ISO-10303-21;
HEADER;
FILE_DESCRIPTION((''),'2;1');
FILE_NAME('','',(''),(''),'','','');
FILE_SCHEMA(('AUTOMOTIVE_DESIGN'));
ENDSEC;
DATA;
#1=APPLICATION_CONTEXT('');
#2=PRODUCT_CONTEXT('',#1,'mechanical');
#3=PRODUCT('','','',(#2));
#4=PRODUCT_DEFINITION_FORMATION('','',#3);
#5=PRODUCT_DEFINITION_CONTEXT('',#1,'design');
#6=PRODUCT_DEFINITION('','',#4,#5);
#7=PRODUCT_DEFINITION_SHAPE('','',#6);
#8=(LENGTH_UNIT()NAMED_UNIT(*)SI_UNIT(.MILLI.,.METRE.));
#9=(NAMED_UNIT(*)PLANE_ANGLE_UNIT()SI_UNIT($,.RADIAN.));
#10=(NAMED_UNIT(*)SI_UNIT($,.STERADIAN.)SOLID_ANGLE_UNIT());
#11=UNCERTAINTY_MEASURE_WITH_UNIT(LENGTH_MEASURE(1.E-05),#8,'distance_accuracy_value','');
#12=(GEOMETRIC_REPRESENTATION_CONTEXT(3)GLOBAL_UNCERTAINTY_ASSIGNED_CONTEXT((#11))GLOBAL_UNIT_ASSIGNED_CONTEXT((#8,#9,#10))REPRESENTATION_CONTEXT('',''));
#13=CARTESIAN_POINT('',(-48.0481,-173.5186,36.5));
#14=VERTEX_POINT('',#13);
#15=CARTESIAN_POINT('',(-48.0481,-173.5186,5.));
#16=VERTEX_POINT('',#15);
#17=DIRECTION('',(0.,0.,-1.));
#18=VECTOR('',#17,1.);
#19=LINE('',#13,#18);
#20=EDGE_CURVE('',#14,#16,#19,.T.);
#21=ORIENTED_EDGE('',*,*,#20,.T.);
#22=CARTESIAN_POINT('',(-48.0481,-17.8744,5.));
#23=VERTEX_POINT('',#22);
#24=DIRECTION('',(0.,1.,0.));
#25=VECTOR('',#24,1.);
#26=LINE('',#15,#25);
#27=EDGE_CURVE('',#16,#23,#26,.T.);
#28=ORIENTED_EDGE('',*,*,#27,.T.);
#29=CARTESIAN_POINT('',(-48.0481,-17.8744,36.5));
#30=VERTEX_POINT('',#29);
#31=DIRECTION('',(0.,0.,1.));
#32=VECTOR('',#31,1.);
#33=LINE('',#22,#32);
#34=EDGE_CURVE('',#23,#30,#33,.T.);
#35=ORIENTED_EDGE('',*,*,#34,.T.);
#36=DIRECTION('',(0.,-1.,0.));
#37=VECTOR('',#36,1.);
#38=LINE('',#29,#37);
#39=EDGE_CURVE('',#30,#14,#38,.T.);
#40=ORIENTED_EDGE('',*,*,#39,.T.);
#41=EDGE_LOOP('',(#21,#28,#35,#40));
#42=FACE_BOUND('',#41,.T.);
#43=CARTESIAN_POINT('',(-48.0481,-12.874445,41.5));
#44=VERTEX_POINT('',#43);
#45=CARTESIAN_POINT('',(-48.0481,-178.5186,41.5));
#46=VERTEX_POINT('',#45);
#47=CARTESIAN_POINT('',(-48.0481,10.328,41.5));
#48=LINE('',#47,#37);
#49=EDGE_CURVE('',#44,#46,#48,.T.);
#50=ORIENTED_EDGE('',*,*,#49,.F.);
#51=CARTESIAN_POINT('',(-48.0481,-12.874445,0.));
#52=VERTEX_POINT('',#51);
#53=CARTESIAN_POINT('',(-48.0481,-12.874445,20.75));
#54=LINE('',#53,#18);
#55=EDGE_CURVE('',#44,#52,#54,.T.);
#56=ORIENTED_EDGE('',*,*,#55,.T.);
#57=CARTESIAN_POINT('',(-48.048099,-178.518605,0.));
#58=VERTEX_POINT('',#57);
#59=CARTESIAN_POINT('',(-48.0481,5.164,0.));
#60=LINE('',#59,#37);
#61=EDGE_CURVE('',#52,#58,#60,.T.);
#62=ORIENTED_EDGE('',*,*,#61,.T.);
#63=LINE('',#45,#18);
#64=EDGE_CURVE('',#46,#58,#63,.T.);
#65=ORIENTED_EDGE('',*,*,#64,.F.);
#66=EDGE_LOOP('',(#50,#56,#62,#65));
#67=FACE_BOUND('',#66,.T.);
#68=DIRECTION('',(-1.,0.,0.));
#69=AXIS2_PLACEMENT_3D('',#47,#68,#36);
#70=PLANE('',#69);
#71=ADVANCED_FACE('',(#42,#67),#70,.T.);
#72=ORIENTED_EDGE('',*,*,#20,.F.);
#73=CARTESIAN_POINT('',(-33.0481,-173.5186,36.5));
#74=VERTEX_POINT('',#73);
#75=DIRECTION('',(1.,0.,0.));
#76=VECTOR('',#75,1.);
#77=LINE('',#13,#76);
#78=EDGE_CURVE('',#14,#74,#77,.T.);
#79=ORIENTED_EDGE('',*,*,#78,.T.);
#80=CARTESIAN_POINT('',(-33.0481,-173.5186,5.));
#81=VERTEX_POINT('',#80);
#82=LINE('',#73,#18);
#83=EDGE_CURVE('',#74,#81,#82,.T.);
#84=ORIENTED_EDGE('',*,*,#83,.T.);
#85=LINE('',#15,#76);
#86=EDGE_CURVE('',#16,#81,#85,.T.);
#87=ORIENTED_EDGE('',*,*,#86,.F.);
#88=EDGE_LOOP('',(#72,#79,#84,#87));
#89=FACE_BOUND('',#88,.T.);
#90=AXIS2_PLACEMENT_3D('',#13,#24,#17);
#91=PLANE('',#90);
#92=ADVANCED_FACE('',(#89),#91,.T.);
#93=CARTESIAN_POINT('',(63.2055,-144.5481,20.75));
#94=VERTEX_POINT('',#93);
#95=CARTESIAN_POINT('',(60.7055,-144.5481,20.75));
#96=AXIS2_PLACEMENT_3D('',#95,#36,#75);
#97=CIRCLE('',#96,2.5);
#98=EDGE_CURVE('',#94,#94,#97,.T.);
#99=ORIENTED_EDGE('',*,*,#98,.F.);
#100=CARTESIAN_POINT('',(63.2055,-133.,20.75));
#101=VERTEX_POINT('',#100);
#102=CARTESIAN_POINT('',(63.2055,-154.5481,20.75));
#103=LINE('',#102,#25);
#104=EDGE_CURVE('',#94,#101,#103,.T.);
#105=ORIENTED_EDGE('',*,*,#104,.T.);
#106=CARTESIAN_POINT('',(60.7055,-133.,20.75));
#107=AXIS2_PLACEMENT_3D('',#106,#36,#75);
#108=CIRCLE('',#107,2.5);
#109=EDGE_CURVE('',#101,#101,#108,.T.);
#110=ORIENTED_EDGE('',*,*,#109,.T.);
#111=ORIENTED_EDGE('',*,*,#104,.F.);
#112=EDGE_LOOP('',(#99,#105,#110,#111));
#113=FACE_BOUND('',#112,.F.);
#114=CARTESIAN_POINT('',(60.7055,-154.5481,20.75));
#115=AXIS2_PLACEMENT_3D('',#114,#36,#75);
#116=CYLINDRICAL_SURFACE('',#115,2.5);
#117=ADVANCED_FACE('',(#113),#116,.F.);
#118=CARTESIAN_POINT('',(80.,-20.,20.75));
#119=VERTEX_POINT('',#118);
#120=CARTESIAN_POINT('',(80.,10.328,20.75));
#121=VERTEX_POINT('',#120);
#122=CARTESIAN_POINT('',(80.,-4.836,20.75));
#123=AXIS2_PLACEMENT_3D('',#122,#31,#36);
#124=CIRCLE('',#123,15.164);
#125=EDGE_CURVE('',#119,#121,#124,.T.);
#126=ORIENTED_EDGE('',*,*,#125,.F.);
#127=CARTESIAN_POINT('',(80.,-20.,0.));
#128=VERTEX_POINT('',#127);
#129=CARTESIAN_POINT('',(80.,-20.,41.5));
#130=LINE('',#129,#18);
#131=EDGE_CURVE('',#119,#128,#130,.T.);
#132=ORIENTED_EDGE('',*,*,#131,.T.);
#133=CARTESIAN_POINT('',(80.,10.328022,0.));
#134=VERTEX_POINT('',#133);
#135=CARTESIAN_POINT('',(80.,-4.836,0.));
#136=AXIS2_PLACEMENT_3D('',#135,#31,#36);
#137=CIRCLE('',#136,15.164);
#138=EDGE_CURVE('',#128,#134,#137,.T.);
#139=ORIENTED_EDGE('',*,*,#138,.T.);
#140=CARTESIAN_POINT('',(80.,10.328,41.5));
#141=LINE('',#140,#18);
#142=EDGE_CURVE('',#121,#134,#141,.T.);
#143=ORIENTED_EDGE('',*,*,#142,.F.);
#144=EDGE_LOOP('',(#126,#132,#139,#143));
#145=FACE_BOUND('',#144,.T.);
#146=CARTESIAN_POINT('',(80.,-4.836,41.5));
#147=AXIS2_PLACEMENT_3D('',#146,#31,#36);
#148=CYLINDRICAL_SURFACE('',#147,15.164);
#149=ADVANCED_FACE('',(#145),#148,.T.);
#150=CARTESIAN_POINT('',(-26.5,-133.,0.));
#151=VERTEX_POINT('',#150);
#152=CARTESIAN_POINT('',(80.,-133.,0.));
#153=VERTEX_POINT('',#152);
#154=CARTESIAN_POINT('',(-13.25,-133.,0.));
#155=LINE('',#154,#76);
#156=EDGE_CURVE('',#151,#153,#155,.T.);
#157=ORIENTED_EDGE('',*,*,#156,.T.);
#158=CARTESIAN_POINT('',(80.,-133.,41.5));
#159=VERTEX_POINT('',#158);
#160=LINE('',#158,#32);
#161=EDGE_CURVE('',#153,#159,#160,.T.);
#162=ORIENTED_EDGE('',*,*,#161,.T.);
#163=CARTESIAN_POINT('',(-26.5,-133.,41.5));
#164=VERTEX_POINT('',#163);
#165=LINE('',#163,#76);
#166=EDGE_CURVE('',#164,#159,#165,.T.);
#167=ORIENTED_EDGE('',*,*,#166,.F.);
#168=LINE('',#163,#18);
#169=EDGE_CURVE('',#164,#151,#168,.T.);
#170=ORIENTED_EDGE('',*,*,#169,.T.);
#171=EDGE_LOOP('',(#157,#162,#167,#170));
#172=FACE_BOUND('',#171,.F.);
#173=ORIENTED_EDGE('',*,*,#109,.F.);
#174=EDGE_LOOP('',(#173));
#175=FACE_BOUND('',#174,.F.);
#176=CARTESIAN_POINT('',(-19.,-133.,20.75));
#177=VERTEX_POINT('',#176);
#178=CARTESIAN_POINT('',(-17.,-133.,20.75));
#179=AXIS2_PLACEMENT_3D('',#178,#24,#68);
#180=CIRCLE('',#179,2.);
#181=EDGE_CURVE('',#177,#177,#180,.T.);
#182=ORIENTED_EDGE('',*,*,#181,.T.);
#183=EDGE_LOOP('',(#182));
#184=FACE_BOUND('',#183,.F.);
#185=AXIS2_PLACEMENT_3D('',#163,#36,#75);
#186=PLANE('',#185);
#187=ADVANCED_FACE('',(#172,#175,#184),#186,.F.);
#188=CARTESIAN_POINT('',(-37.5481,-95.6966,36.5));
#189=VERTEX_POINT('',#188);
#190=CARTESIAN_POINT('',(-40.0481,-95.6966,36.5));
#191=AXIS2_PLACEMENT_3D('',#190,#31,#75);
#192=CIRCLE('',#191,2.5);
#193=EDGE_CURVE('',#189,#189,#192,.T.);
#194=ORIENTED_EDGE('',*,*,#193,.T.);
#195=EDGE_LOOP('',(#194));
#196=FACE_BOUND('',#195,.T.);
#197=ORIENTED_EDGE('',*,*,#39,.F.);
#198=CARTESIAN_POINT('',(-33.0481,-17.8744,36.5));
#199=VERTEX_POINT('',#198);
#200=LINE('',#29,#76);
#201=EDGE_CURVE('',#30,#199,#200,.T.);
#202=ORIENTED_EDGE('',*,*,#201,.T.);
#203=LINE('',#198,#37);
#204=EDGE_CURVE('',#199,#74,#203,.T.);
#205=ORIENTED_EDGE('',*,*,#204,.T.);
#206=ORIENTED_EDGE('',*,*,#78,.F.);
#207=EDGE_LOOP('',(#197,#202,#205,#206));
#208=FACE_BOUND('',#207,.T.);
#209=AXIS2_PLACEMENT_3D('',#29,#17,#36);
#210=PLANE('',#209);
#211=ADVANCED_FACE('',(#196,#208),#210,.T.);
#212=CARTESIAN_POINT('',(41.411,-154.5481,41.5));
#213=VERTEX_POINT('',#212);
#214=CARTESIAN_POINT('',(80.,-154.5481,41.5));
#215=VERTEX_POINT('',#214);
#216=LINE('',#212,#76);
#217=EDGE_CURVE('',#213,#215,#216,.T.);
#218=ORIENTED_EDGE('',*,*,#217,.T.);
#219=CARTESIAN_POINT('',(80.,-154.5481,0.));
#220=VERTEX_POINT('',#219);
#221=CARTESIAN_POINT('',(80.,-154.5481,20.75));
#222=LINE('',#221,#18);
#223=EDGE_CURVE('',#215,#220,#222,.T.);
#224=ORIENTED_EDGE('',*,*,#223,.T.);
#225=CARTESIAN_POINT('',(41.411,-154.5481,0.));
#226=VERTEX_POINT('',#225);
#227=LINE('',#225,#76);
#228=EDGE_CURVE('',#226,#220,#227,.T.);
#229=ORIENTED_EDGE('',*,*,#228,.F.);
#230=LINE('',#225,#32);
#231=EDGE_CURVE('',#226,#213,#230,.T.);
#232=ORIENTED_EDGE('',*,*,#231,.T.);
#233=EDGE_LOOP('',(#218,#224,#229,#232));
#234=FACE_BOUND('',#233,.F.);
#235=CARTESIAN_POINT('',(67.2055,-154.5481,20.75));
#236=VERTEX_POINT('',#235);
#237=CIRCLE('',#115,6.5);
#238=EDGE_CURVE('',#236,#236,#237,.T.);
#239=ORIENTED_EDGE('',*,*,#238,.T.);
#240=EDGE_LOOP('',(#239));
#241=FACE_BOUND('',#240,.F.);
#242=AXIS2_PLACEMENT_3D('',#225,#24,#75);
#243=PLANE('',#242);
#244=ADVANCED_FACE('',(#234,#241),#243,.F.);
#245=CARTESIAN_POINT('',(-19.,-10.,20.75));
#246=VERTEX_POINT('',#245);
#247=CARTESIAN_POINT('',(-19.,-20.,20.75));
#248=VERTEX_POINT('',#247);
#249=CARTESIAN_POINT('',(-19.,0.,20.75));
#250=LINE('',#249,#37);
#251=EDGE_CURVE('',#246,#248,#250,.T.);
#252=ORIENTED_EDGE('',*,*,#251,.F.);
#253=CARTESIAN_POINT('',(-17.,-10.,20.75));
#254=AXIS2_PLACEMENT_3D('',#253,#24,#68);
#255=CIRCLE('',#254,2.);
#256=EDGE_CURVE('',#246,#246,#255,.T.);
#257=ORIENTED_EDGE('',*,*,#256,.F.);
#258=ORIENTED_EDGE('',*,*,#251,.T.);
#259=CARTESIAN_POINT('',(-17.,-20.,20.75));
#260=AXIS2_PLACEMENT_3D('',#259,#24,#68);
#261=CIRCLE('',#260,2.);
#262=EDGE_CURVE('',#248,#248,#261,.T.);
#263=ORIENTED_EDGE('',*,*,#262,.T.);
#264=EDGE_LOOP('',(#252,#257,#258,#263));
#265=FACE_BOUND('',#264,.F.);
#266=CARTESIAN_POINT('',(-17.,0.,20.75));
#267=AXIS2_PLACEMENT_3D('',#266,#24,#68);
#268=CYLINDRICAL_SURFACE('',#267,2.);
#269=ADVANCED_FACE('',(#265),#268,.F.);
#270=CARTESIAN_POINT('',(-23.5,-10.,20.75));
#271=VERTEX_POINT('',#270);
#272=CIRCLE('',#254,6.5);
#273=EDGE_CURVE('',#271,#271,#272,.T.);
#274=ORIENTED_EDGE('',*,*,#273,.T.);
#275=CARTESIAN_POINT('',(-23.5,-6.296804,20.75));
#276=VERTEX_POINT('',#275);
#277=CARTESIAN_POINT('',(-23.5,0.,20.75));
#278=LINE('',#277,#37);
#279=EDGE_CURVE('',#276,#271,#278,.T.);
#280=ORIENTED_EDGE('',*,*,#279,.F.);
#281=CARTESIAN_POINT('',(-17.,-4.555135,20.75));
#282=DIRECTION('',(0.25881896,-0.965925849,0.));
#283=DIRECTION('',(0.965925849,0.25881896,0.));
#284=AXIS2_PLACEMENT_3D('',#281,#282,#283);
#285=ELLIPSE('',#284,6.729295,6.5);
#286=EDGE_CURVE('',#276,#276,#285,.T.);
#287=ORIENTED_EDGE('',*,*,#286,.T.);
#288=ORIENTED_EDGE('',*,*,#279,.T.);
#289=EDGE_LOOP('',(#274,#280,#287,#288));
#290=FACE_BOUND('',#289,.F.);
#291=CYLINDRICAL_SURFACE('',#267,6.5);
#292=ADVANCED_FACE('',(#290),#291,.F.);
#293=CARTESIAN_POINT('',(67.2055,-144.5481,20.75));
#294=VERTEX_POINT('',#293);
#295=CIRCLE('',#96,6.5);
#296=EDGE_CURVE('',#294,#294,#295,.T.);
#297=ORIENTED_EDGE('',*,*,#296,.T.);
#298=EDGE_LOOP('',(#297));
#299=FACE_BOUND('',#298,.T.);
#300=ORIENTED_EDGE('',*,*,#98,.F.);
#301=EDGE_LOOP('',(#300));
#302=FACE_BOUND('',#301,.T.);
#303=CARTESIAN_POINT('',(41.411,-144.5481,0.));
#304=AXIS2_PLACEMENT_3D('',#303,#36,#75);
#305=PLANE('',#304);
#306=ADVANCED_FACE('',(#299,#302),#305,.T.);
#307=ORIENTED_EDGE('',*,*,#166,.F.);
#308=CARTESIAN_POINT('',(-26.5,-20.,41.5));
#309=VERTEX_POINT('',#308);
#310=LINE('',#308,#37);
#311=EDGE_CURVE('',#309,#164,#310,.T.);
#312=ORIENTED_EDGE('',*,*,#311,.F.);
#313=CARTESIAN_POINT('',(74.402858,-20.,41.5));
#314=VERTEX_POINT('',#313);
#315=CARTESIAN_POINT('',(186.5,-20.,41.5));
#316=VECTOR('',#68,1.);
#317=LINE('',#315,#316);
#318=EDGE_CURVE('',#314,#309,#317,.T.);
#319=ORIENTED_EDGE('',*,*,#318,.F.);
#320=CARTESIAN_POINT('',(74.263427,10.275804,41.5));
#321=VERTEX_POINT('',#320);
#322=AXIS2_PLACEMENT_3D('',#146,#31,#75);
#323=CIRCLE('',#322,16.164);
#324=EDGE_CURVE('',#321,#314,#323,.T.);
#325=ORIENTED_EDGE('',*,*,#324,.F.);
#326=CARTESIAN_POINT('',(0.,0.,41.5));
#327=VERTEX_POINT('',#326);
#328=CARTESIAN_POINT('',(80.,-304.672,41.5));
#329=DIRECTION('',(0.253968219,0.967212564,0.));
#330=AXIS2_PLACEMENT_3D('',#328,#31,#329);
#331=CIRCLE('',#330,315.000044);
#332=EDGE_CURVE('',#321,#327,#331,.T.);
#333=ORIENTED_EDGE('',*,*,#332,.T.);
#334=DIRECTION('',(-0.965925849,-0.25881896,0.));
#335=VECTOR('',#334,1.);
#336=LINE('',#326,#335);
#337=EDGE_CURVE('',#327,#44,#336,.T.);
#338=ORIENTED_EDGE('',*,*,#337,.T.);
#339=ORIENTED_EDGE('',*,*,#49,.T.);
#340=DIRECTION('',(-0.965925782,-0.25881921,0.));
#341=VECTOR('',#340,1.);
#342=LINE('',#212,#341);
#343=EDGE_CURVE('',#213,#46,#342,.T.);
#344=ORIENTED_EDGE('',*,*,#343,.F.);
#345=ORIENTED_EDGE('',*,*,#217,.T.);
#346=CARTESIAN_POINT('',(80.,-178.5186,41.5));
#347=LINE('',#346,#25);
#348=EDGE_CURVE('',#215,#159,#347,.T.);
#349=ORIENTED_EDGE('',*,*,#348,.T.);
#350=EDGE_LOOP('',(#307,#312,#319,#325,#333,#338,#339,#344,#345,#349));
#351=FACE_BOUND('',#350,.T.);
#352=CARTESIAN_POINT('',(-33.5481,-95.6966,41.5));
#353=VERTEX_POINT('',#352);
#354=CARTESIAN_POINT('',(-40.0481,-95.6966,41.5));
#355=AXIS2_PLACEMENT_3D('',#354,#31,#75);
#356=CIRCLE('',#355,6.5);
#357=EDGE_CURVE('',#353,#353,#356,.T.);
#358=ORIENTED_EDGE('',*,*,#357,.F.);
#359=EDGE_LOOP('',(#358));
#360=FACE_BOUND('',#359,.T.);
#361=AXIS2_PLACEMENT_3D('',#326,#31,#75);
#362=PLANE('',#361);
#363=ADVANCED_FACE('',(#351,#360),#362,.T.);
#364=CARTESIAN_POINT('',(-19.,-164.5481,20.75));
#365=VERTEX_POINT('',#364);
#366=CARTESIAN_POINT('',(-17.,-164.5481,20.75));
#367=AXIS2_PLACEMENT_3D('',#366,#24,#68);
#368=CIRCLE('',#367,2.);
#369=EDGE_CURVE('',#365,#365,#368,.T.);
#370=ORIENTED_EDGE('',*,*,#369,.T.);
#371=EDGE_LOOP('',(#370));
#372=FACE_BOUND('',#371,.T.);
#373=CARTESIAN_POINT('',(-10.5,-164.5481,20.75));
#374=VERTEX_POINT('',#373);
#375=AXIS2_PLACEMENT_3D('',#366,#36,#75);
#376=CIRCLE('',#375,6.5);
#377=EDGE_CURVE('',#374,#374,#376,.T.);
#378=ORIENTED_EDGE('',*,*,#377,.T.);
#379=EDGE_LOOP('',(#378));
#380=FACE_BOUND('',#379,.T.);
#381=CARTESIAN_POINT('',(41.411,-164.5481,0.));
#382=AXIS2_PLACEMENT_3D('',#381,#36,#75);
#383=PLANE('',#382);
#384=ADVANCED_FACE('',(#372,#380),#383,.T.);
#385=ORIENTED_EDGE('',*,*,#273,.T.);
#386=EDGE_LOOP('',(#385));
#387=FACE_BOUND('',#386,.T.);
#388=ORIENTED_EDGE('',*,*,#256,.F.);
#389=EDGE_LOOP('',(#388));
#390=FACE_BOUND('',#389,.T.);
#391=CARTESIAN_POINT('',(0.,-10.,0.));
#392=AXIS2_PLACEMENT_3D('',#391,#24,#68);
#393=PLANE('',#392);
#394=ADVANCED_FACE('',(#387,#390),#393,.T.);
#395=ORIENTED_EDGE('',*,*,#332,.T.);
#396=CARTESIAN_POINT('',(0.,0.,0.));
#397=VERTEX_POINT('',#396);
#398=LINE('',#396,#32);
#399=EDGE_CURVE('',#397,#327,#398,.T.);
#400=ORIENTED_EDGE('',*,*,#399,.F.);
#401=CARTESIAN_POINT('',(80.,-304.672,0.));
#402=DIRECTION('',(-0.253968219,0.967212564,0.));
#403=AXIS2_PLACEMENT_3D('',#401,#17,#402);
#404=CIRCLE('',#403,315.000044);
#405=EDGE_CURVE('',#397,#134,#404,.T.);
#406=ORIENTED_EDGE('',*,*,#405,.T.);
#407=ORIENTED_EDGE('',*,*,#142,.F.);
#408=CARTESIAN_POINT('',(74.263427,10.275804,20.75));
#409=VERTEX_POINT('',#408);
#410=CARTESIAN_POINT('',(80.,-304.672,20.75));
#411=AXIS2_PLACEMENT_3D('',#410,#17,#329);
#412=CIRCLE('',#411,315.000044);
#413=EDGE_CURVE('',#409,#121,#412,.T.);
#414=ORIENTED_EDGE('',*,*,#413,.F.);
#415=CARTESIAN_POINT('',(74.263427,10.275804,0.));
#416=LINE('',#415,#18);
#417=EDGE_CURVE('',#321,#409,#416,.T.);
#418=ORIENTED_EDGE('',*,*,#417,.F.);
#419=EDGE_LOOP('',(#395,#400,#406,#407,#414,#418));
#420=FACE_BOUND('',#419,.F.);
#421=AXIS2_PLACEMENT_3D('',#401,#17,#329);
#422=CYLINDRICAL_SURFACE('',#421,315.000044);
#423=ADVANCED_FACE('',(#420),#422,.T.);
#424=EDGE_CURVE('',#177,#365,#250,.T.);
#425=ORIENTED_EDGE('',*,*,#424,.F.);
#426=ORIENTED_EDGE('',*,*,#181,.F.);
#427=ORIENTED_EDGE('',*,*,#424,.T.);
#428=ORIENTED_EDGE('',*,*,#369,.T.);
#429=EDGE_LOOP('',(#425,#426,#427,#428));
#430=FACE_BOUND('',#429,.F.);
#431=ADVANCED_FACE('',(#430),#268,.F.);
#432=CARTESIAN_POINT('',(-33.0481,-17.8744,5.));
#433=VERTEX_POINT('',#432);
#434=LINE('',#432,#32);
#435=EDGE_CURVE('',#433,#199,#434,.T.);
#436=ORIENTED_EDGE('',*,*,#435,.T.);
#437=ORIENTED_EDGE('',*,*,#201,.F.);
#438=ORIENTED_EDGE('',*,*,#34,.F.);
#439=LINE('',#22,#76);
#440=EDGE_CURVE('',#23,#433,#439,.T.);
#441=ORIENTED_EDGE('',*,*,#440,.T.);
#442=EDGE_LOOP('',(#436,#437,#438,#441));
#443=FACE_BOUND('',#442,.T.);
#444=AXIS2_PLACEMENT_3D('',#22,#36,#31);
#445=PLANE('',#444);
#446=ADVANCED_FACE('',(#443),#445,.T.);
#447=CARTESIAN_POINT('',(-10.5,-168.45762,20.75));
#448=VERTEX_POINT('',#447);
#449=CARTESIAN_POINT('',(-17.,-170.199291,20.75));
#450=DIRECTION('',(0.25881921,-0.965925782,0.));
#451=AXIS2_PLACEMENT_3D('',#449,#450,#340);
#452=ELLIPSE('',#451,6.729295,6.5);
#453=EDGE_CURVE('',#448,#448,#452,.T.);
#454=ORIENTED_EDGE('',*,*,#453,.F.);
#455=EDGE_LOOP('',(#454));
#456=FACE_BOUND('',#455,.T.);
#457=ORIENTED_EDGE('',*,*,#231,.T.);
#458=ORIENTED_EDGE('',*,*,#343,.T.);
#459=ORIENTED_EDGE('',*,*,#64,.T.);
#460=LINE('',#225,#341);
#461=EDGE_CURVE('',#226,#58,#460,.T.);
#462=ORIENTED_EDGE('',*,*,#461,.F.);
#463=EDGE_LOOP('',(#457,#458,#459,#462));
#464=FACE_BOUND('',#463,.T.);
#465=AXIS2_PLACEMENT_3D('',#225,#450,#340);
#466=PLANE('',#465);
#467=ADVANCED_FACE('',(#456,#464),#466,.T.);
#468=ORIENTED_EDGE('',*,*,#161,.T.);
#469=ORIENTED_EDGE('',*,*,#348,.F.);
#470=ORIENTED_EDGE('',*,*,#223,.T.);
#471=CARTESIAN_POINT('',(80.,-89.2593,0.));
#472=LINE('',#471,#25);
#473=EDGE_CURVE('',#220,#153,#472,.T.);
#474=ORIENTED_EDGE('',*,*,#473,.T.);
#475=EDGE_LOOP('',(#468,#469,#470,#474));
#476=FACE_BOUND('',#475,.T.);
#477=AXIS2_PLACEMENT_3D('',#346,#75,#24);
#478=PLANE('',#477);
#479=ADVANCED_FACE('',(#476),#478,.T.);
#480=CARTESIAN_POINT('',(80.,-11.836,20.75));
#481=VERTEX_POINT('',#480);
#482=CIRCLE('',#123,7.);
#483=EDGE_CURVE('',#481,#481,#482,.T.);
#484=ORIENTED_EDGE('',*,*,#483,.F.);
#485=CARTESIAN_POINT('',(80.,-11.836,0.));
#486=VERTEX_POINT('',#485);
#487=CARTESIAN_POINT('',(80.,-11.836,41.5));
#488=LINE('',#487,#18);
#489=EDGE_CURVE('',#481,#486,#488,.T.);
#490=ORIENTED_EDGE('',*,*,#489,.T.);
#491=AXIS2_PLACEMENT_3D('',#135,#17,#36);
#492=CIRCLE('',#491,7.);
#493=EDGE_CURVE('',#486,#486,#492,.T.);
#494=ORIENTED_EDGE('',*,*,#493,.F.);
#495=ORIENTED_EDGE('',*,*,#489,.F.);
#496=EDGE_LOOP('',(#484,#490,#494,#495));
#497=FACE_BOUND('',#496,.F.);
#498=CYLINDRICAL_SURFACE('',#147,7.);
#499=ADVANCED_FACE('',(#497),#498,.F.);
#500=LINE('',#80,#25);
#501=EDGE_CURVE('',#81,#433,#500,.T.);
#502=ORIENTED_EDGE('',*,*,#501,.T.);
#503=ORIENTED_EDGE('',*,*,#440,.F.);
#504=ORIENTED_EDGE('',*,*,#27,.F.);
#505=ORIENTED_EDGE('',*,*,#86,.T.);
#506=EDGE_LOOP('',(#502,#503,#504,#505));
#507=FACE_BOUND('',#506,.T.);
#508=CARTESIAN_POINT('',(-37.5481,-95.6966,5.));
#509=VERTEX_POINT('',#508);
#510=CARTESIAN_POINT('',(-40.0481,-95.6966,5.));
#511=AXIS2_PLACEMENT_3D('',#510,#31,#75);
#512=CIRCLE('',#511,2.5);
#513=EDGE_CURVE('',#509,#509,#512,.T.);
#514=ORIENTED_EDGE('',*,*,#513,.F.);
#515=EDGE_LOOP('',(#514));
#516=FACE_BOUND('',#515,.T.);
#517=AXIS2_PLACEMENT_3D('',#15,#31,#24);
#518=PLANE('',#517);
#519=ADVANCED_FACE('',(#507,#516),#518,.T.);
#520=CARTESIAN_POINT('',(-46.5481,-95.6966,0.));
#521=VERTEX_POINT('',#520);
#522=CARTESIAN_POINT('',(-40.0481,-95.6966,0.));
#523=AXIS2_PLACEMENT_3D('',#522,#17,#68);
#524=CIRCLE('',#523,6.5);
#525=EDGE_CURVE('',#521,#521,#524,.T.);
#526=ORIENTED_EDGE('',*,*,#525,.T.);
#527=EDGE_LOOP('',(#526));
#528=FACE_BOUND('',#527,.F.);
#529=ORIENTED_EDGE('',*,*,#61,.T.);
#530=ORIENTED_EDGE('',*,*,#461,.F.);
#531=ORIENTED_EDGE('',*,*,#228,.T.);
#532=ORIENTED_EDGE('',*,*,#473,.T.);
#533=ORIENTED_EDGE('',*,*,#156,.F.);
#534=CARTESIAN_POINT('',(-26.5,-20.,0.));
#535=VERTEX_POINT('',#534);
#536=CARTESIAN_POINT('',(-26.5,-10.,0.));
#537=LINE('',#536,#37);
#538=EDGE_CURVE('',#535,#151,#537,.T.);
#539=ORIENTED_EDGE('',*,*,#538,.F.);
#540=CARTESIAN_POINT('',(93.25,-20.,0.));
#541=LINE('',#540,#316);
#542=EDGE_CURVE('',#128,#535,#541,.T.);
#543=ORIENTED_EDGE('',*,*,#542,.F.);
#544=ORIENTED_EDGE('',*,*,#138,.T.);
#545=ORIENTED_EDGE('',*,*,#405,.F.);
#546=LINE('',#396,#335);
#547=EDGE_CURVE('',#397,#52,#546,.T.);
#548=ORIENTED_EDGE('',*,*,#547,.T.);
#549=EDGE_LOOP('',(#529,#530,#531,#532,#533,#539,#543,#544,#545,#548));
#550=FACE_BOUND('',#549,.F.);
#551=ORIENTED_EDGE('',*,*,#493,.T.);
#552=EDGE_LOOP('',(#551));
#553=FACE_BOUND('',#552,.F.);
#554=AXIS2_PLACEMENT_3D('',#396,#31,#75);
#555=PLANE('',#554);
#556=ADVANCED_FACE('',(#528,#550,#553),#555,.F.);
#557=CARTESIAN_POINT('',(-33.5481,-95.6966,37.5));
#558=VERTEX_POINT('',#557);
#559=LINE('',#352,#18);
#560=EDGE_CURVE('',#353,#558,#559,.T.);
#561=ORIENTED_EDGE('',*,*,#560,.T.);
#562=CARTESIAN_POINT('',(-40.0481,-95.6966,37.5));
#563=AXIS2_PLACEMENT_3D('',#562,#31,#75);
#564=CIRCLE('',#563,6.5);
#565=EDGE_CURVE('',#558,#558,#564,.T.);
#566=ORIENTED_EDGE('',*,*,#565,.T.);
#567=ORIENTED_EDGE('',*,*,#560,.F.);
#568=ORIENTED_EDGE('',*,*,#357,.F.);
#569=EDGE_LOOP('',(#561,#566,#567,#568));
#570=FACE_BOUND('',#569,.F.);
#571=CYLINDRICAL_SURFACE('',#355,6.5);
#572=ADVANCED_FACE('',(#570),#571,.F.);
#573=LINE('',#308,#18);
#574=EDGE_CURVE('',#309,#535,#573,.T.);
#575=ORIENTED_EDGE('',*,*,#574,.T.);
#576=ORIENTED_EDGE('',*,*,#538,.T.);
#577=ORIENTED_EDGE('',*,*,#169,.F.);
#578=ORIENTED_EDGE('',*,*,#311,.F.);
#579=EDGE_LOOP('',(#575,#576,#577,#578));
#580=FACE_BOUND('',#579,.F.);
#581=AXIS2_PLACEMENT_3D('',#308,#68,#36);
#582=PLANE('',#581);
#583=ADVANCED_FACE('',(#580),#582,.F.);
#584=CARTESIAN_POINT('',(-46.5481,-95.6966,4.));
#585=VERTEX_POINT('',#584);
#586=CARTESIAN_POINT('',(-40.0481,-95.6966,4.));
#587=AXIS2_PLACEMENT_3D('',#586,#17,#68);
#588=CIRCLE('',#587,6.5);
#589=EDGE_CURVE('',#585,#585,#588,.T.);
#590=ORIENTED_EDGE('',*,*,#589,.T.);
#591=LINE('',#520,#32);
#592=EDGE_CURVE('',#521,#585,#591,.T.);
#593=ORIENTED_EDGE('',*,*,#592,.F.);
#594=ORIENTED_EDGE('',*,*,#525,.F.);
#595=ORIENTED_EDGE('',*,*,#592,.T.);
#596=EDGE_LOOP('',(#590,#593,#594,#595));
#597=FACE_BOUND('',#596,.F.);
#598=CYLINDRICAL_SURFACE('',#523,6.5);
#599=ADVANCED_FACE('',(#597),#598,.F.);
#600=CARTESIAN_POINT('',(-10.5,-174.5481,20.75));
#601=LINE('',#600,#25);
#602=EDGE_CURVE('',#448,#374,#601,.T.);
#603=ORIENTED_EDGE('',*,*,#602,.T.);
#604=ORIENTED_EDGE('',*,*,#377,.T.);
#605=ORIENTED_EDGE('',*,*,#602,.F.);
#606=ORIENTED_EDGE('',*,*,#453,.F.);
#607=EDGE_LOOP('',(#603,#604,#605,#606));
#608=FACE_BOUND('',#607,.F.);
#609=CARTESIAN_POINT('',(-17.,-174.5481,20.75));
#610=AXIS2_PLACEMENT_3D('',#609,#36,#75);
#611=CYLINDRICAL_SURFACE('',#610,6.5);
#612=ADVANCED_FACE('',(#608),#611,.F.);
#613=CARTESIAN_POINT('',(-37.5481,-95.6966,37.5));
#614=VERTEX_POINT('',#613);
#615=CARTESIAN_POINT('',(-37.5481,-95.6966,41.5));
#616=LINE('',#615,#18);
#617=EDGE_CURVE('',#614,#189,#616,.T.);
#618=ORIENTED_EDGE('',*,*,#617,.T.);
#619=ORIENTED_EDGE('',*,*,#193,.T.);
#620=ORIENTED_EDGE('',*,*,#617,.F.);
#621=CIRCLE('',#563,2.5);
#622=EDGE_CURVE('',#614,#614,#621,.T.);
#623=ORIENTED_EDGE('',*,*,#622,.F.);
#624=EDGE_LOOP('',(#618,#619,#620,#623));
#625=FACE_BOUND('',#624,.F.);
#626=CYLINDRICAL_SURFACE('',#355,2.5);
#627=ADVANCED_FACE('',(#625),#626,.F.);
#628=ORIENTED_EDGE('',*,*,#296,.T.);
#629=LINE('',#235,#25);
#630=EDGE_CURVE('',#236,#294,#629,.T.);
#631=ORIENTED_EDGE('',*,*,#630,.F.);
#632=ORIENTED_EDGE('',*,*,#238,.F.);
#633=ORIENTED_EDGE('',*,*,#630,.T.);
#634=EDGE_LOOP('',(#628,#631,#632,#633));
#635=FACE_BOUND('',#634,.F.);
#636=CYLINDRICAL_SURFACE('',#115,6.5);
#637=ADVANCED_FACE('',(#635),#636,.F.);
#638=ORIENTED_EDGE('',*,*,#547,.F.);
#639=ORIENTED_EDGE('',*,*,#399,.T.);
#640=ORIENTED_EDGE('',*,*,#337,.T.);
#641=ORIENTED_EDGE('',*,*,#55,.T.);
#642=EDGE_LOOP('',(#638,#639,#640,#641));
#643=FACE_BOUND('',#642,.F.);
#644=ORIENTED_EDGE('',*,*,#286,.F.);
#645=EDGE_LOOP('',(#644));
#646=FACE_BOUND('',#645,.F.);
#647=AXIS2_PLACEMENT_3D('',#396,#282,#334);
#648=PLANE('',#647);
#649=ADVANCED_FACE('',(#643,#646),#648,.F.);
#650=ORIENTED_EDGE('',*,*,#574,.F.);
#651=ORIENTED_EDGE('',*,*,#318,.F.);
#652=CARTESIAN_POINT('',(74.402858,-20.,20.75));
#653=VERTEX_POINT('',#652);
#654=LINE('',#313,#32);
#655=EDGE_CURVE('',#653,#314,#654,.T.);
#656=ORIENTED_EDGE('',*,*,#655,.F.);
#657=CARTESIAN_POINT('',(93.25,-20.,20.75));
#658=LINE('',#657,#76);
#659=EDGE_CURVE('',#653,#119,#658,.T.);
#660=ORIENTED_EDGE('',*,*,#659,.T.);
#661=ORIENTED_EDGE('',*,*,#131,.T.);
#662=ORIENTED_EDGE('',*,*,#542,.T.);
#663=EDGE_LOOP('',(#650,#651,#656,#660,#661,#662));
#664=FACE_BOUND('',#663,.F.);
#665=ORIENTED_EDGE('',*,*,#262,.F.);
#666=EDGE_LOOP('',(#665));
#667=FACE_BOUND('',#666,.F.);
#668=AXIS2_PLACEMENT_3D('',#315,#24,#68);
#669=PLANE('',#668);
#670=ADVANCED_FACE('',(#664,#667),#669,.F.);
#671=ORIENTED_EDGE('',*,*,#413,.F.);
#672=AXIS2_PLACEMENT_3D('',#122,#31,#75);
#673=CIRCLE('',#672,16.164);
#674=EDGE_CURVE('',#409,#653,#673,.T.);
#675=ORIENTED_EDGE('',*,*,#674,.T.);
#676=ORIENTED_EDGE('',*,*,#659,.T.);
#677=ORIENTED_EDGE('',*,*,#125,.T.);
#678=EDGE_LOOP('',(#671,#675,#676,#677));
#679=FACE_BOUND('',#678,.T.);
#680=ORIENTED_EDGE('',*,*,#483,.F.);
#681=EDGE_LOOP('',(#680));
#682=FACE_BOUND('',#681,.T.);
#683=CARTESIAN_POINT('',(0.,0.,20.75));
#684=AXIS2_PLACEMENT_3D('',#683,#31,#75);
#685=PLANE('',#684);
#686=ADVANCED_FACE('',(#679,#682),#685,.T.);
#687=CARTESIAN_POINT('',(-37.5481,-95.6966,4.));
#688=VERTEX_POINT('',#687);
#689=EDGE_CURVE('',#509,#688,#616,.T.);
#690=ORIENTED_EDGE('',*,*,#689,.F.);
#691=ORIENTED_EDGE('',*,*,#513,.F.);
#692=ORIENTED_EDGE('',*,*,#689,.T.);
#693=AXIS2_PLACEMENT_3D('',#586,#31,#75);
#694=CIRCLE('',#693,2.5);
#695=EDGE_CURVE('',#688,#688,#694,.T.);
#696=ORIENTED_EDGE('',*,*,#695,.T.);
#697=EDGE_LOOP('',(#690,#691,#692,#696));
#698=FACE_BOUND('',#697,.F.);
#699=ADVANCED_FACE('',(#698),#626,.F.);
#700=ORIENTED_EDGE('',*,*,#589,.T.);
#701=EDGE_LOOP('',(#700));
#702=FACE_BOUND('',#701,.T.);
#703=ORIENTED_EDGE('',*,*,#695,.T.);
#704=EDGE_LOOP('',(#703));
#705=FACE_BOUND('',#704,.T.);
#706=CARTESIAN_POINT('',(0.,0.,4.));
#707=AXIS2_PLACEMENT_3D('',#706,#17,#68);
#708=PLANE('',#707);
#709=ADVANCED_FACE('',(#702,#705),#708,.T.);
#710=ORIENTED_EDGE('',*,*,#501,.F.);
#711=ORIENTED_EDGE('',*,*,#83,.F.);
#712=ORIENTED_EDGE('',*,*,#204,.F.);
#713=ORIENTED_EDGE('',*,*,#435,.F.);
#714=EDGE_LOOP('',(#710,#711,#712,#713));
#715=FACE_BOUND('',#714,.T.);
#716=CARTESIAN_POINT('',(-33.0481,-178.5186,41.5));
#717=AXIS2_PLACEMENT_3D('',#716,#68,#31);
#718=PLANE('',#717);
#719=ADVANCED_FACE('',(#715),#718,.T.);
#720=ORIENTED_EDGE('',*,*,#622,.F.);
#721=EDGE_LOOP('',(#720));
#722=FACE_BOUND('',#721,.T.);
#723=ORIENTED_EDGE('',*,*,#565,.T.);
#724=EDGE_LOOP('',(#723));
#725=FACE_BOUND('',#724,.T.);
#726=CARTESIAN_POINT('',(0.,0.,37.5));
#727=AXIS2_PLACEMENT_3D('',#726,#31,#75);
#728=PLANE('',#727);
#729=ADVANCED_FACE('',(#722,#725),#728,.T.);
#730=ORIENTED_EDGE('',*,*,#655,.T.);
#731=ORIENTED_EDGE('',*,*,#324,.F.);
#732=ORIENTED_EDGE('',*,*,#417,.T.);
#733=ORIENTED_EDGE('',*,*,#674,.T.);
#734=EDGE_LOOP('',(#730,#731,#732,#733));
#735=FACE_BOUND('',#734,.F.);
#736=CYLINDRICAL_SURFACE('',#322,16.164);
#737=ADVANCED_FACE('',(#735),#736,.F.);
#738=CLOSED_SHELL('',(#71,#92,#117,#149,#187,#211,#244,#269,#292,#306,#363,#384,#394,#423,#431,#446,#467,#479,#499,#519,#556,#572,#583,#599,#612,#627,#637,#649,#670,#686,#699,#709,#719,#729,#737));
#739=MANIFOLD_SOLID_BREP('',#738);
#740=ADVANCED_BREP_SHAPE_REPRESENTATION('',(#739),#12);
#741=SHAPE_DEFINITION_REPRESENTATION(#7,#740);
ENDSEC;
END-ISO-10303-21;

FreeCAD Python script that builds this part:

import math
import FreeCAD as App
import Part
import Sketcher

V = App.Vector
Q = App.Units.Quantity

doc = App.newDocument("Part")
body = doc.addObject("PartDesign::Body", "Body")

# Sketch on XY plane
sketch1 = body.newObject("Sketcher::SketchObject", "Sketch")
sketch1.AttachmentSupport = (doc.getObject("XY_Plane"), [""])
sketch1.MapMode = "FlatFace"
sketch1.addGeometry(Part.LineSegment(V(-55.1815, -180.43, 0), V(41.411, -154.5481, 0)), False)
sketch1.addGeometry(Part.LineSegment(V(41.411, -154.5481, 0), V(118.589, -154.5481, 0)), False)
sketch1.addGeometry(Part.LineSegment(V(118.589, -154.5481, 0), V(215.1815, -180.43, 0)), False)
sketch1.addGeometry(Part.ArcOfCircle(Part.Circle(V(235.8871, -103.156, 0), V(0, 0, 1), 80), math.radians(-105.000065), math.radians(75.000023)), False)
sketch1.addGeometry(Part.LineSegment(V(256.5926, -25.8819, 0), V(160, 0, 0)), False)
sketch1.addGeometry(Part.ArcOfCircle(Part.Circle(V(80, -304.672, 0), V(0, 0, 1), 315.000044), math.radians(75.287544), math.radians(104.712456)), False)
sketch1.addGeometry(Part.LineSegment(V(0, 0, 0), V(-96.5926, -25.8819, 0)), False)
sketch1.addGeometry(Part.ArcOfCircle(Part.Circle(V(-75.8871, -103.156, 0), V(0, 0, 1), 80), math.radians(104.999977), math.radians(285.000065)), False)
sketch1.addConstraint(Sketcher.Constraint("Coincident", 0, 2, 1, 1))
sketch1.addConstraint(Sketcher.Constraint("Coincident", 1, 2, 2, 1))
sketch1.addConstraint(Sketcher.Constraint("Tangent", 2, 2, 3, 1))
sketch1.addConstraint(Sketcher.Constraint("Tangent", 3, 2, 4, 1))
sketch1.addConstraint(Sketcher.Constraint("Coincident", 4, 2, 5, 1))
sketch1.addConstraint(Sketcher.Constraint("Coincident", 5, 2, 6, 1))
sketch1.addConstraint(Sketcher.Constraint("Tangent", 6, 2, 7, 1))
sketch1.addConstraint(Sketcher.Constraint("Tangent", 7, 2, 0, 1))
sketch1.addConstraint(Sketcher.Constraint("Horizontal", 1))
sketch1.addConstraint(Sketcher.Constraint("Coincident", 5, 2, -1, 1))
sketch1.addConstraint(Sketcher.Constraint("Equal", 3, 7))
sketch1.addConstraint(Sketcher.Constraint("PointOnObject", 4, 2, -1))
sketch1.addConstraint(Sketcher.Constraint("Parallel", 2, 4))
sketch1.addConstraint(Sketcher.Constraint("Parallel", 0, 6))
sketch1.addConstraint(Sketcher.Constraint("Horizontal", 3, 3, 7, 3))
sketch1.addConstraint(Sketcher.Constraint("Horizontal", 3, 2, 6, 2))
sketch1.addConstraint(Sketcher.Constraint("Equal", 2, 4))
sketch1.addConstraint(Sketcher.Constraint("Radius", 3, 80.0))
sketch1.addConstraint(Sketcher.Constraint("Radius", 5, 315.0))
sketch1.addConstraint(Sketcher.Constraint("Distance", 0, 100.0))
sketch1.addConstraint(Sketcher.Constraint("DistanceX", -1, 1, 4, 2, 160.0))
sketch1.addConstraint(Sketcher.Constraint("Angle", 0, Q("15 deg")))
pad1 = body.newObject("PartDesign::Pad", "Pad")
pad1.Profile = sketch1
pad1.Length = 41.5

# Sketch on XY plane
sketch2 = body.newObject("Sketcher::SketchObject", "Sketch001")
sketch2.AttachmentSupport = (doc.getObject("XY_Plane"), [""])
sketch2.MapMode = "FlatFace"
sketch2.AttachmentOffset = App.Placement(V(0, 0, 41.5), App.Rotation())
sketch2.addGeometry(Part.LineSegment(V(-26.5, -20, 0), V(-26.5, -133, 0)), False)
sketch2.addGeometry(Part.LineSegment(V(-26.5, -133, 0), V(186.5, -133, 0)), False)
sketch2.addGeometry(Part.LineSegment(V(186.5, -133, 0), V(186.5, -20, 0)), False)
sketch2.addGeometry(Part.LineSegment(V(186.5, -20, 0), V(-26.5, -20, 0)), False)
sketch2.addConstraint(Sketcher.Constraint("Coincident", 0, 2, 1, 1))
sketch2.addConstraint(Sketcher.Constraint("Coincident", 1, 2, 2, 1))
sketch2.addConstraint(Sketcher.Constraint("Coincident", 2, 2, 3, 1))
sketch2.addConstraint(Sketcher.Constraint("Coincident", 3, 2, 0, 1))
sketch2.addConstraint(Sketcher.Constraint("Vertical", 0))
sketch2.addConstraint(Sketcher.Constraint("Horizontal", 1))
sketch2.addConstraint(Sketcher.Constraint("Vertical", 2))
sketch2.addConstraint(Sketcher.Constraint("Horizontal", 3))
sketch2.addConstraint(Sketcher.Constraint("DistanceX", 1, 1, 1, 2, 213.0))
sketch2.addConstraint(Sketcher.Constraint("DistanceY", 0, 2, 0, 1, 113.0))
sketch2.addConstraint(Sketcher.Constraint("DistanceY", 2, 2, -1, 1, 20.0))
sketch2.addConstraint(Sketcher.Constraint("DistanceX", 0, 2, -1, 1, 26.5))
pocket1 = body.newObject("PartDesign::Pocket", "Pocket")
pocket1.Profile = sketch2
pocket1.Type = "ThroughAll"

# Sketch on XY plane
sketch3 = body.newObject("Sketcher::SketchObject", "Sketch002")
sketch3.AttachmentSupport = (doc.getObject("XY_Plane"), [""])
sketch3.MapMode = "FlatFace"
sketch3.AttachmentOffset = App.Placement(V(0, 0, 41.5), App.Rotation())
sketch3.addGeometry(Part.LineSegment(V(-157.6505, 50.655, 0), V(-157.6505, -218.8456, 0)), False)
sketch3.addGeometry(Part.LineSegment(V(-157.6505, -218.8456, 0), V(317.6505, -218.8456, 0)), False)
sketch3.addGeometry(Part.LineSegment(V(317.6505, -218.8456, 0), V(317.6505, 50.655, 0)), False)
sketch3.addGeometry(Part.LineSegment(V(317.6505, 50.655, 0), V(-157.6505, 50.655, 0)), False)
sketch3.addGeometry(Part.LineSegment(V(-48.0481, -178.5186, 0), V(-48.0481, 10.328, 0)), False)
sketch3.addGeometry(Part.LineSegment(V(-48.0481, 10.328, 0), V(208.0481, 10.328, 0)), False)
sketch3.addGeometry(Part.LineSegment(V(208.0481, 10.328, 0), V(208.0481, -178.5186, 0)), False)
sketch3.addGeometry(Part.LineSegment(V(208.0481, -178.5186, 0), V(-48.0481, -178.5186, 0)), False)
sketch3.addConstraint(Sketcher.Constraint("Coincident", 0, 2, 1, 1))
sketch3.addConstraint(Sketcher.Constraint("Coincident", 1, 2, 2, 1))
sketch3.addConstraint(Sketcher.Constraint("Coincident", 2, 2, 3, 1))
sketch3.addConstraint(Sketcher.Constraint("Coincident", 3, 2, 0, 1))
sketch3.addConstraint(Sketcher.Constraint("Coincident", 4, 2, 5, 1))
sketch3.addConstraint(Sketcher.Constraint("Coincident", 5, 2, 6, 1))
sketch3.addConstraint(Sketcher.Constraint("Coincident", 6, 2, 7, 1))
sketch3.addConstraint(Sketcher.Constraint("Coincident", 7, 2, 4, 1))
sketch3.addConstraint(Sketcher.Constraint("Vertical", 0))
sketch3.addConstraint(Sketcher.Constraint("Horizontal", 1))
sketch3.addConstraint(Sketcher.Constraint("Vertical", 2))
sketch3.addConstraint(Sketcher.Constraint("Horizontal", 3))
sketch3.addConstraint(Sketcher.Constraint("Vertical", 4))
sketch3.addConstraint(Sketcher.Constraint("Horizontal", 5))
sketch3.addConstraint(Sketcher.Constraint("Vertical", 6))
sketch3.addConstraint(Sketcher.Constraint("Horizontal", 7))
sketch3.addConstraint(Sketcher.Constraint("DistanceX", 1, 1, 1, 2, 475.301))
sketch3.addConstraint(Sketcher.Constraint("DistanceY", 0, 2, 0, 1, 269.5006))
sketch3.addConstraint(Sketcher.Constraint("DistanceX", 5, 1, 5, 2, 256.0962))
sketch3.addConstraint(Sketcher.Constraint("DistanceY", 4, 1, 4, 2, 188.8466))
sketch3.addConstraint(Sketcher.Constraint("DistanceY", -1, 1, 2, 2, 50.655))
sketch3.addConstraint(Sketcher.Constraint("DistanceX", 4, 2, -1, 1, 48.048))
sketch3.addConstraint(Sketcher.Constraint("DistanceY", -1, 1, 4, 2, 10.328))
sketch3.addConstraint(Sketcher.Constraint("DistanceX", 0, 2, -1, 1, 157.6505))
pocket2 = body.newObject("PartDesign::Pocket", "Pocket001")
pocket2.Profile = sketch3
pocket2.Type = "ThroughAll"

# Sketch on XY plane
sketch4 = body.newObject("Sketcher::SketchObject", "Sketch003")
sketch4.AttachmentSupport = (doc.getObject("XY_Plane"), [""])
sketch4.MapMode = "FlatFace"
sketch4.AttachmentOffset = App.Placement(V(0, 0, 41.5), App.Rotation())
sketch4.addGeometry(Part.LineSegment(V(80, -178.5186, 0), V(208.0481, -178.5186, 0)), False)
sketch4.addGeometry(Part.LineSegment(V(208.0481, -178.5186, 0), V(208.0481, 10.328, 0)), False)
sketch4.addGeometry(Part.LineSegment(V(208.0481, 10.328, 0), V(80, 10.328, 0)), False)
sketch4.addGeometry(Part.LineSegment(V(80, 10.328, 0), V(80, -178.5186, 0)), False)
sketch4.addConstraint(Sketcher.Constraint("Coincident", 0, 2, 1, 1))
sketch4.addConstraint(Sketcher.Constraint("Coincident", 1, 2, 2, 1))
sketch4.addConstraint(Sketcher.Constraint("Coincident", 2, 2, 3, 1))
sketch4.addConstraint(Sketcher.Constraint("Coincident", 3, 2, 0, 1))
sketch4.addConstraint(Sketcher.Constraint("Horizontal", 0))
sketch4.addConstraint(Sketcher.Constraint("Vertical", 1))
sketch4.addConstraint(Sketcher.Constraint("Horizontal", 2))
sketch4.addConstraint(Sketcher.Constraint("Vertical", 3))
sketch4.addConstraint(Sketcher.Constraint("DistanceX", -1, 1, 2, 2, 80.0))
sketch4.addConstraint(Sketcher.Constraint("DistanceX", 0, 1, 0, 2, 128.048))
sketch4.addConstraint(Sketcher.Constraint("DistanceY", 1, 1, 1, 2, 188.8466))
sketch4.addConstraint(Sketcher.Constraint("DistanceY", -1, 1, 1, 2, 10.328))
pocket3 = body.newObject("PartDesign::Pocket", "Pocket002")
pocket3.Profile = sketch4
pocket3.Type = "ThroughAll"

# Sketch on XZ plane
sketch5 = body.newObject("Sketcher::SketchObject", "Sketch004")
sketch5.AttachmentSupport = (doc.getObject("XZ_Plane"), [""])
sketch5.MapMode = "FlatFace"
sketch5.addGeometry(Part.Circle(V(-17, 20.75, 0), V(0, 0, 1), 2), False)
sketch5.addConstraint(Sketcher.Constraint("Diameter", 0, 4.0))
sketch5.addConstraint(Sketcher.Constraint("DistanceX", 0, 3, -1, 1, 17.0))
sketch5.addConstraint(Sketcher.Constraint("DistanceY", -1, 1, 0, 3, 20.75))
pocket4 = body.newObject("PartDesign::Pocket", "Pocket003")
pocket4.Profile = sketch5
pocket4.Type = "ThroughAll"
pocket4.Midplane = True

# Sketch on XZ plane
sketch6 = body.newObject("Sketcher::SketchObject", "Sketch005")
sketch6.AttachmentSupport = (doc.getObject("XZ_Plane"), [""])
sketch6.MapMode = "FlatFace"
sketch6.addGeometry(Part.Circle(V(-17, 20.75, 0), V(0, 0, 1), 6.5), False)
sketch6.addGeometry(Part.Circle(V(-17, 20.75, 0), V(0, 0, 1), 2), False)
sketch6.addConstraint(Sketcher.Constraint("Coincident", 1, 3, 0, 3))
sketch6.addConstraint(Sketcher.Constraint("Diameter", 0, 13.0))
sketch6.addConstraint(Sketcher.Constraint("Diameter", 1, 4.0))
sketch6.addConstraint(Sketcher.Constraint("DistanceX", 0, 3, -1, 1, 17.0))
sketch6.addConstraint(Sketcher.Constraint("DistanceY", -1, 1, 0, 3, 20.75))
pocket5 = body.newObject("PartDesign::Pocket", "Pocket004")
pocket5.Profile = sketch6
pocket5.Length = 10
pocket5.Reversed = True

# Sketch on XZ plane
sketch7 = body.newObject("Sketcher::SketchObject", "Sketch006")
sketch7.AttachmentSupport = (doc.getObject("XZ_Plane"), [""])
sketch7.MapMode = "FlatFace"
sketch7.AttachmentOffset = App.Placement(V(0, 0, 174.5481), App.Rotation())
sketch7.addGeometry(Part.Circle(V(-17, 20.75, 0), V(0, 0, 1), 6.5), False)
sketch7.addGeometry(Part.Circle(V(-17, 20.75, 0), V(0, 0, 1), 2), False)
sketch7.addConstraint(Sketcher.Constraint("Coincident", 1, 3, 0, 3))
sketch7.addConstraint(Sketcher.Constraint("Diameter", 0, 13.0))
sketch7.addConstraint(Sketcher.Constraint("Diameter", 1, 4.0))
sketch7.addConstraint(Sketcher.Constraint("DistanceX", 0, 3, -1, 1, 17.0))
sketch7.addConstraint(Sketcher.Constraint("DistanceY", -1, 1, 0, 3, 20.75))
pocket6 = body.newObject("PartDesign::Pocket", "Pocket005")
pocket6.Profile = sketch7
pocket6.Length = 10

# Sketch on XZ plane
sketch8 = body.newObject("Sketcher::SketchObject", "Sketch007")
sketch8.AttachmentSupport = (doc.getObject("XZ_Plane"), [""])
sketch8.MapMode = "FlatFace"
sketch8.AttachmentOffset = App.Placement(V(0, 0, 154.5481), App.Rotation())
sketch8.addGeometry(Part.Circle(V(60.7055, 20.75, 0), V(0, 0, 1), 6.5), False)
sketch8.addGeometry(Part.Circle(V(60.7055, 20.75, 0), V(0, 0, 1), 2.5), False)
sketch8.addConstraint(Sketcher.Constraint("Coincident", 1, 3, 0, 3))
sketch8.addConstraint(Sketcher.Constraint("Diameter", 0, 13.0))
sketch8.addConstraint(Sketcher.Constraint("Diameter", 1, 5.0))
sketch8.addConstraint(Sketcher.Constraint("DistanceY", -1, 1, 0, 3, 20.75))
sketch8.addConstraint(Sketcher.Constraint("DistanceX", -1, 1, 0, 3, 60.7055))
pocket7 = body.newObject("PartDesign::Pocket", "Pocket006")
pocket7.Profile = sketch8
pocket7.Length = 10

# Sketch on YZ plane
sketch9 = body.newObject("Sketcher::SketchObject", "Sketch008")
sketch9.AttachmentSupport = (doc.getObject("YZ_Plane"), [""])
sketch9.MapMode = "FlatFace"
sketch9.AttachmentOffset = App.Placement(V(0, 0, -48.0481), App.Rotation())
sketch9.addGeometry(Part.LineSegment(V(-173.5186, 5, 0), V(-173.5186, 36.5, 0)), False)
sketch9.addGeometry(Part.LineSegment(V(-173.5186, 36.5, 0), V(-17.8744, 36.5, 0)), False)
sketch9.addGeometry(Part.LineSegment(V(-17.8744, 36.5, 0), V(-17.8744, 5, 0)), False)
sketch9.addGeometry(Part.LineSegment(V(-17.8744, 5, 0), V(-173.5186, 5, 0)), False)
sketch9.addConstraint(Sketcher.Constraint("Coincident", 0, 2, 1, 1))
sketch9.addConstraint(Sketcher.Constraint("Coincident", 1, 2, 2, 1))
sketch9.addConstraint(Sketcher.Constraint("Coincident", 2, 2, 3, 1))
sketch9.addConstraint(Sketcher.Constraint("Coincident", 3, 2, 0, 1))
sketch9.addConstraint(Sketcher.Constraint("Vertical", 0))
sketch9.addConstraint(Sketcher.Constraint("Horizontal", 1))
sketch9.addConstraint(Sketcher.Constraint("Vertical", 2))
sketch9.addConstraint(Sketcher.Constraint("Horizontal", 3))
sketch9.addConstraint(Sketcher.Constraint("DistanceY", -1, 1, 2, 2, 5.0))
sketch9.addConstraint(Sketcher.Constraint("DistanceY", 0, 1, 0, 2, 31.5))
sketch9.addConstraint(Sketcher.Constraint("DistanceX", 1, 1, 1, 2, 155.6442))
sketch9.addConstraint(Sketcher.Constraint("DistanceX", 0, 2, -1, 1, 173.5186))
pocket8 = body.newObject("PartDesign::Pocket", "Pocket007")
pocket8.Profile = sketch9
pocket8.Length = 15
pocket8.Reversed = True

# Sketch on XY plane
sketch10 = body.newObject("Sketcher::SketchObject", "Sketch009")
sketch10.AttachmentSupport = (doc.getObject("XY_Plane"), [""])
sketch10.MapMode = "FlatFace"
sketch10.AttachmentOffset = App.Placement(V(0, 0, 41.5), App.Rotation())
sketch10.addGeometry(Part.Circle(V(-40.0481, -95.6966, 0), V(0, 0, 1), 2.5), False)
sketch10.addConstraint(Sketcher.Constraint("Diameter", 0, 5.0))
sketch10.addConstraint(Sketcher.Constraint("DistanceX", 0, 3, -1, 1, 40.048))
sketch10.addConstraint(Sketcher.Constraint("DistanceY", 0, 3, -1, 1, 95.6966))
pocket9 = body.newObject("PartDesign::Pocket", "Pocket008")
pocket9.Profile = sketch10
pocket9.Type = "ThroughAll"

# Sketch on XY plane
sketch11 = body.newObject("Sketcher::SketchObject", "Sketch010")
sketch11.AttachmentSupport = (doc.getObject("XY_Plane"), [""])
sketch11.MapMode = "FlatFace"
sketch11.AttachmentOffset = App.Placement(V(0, 0, 41.5), App.Rotation())
sketch11.addGeometry(Part.Circle(V(-40.0481, -95.6966, 0), V(0, 0, 1), 6.5), False)
sketch11.addGeometry(Part.Circle(V(-40.0481, -95.6966, 0), V(0, 0, 1), 2.5), False)
sketch11.addConstraint(Sketcher.Constraint("Coincident", 1, 3, 0, 3))
sketch11.addConstraint(Sketcher.Constraint("Diameter", 0, 13.0))
sketch11.addConstraint(Sketcher.Constraint("Diameter", 1, 5.0))
sketch11.addConstraint(Sketcher.Constraint("DistanceX", 0, 3, -1, 1, 40.048))
sketch11.addConstraint(Sketcher.Constraint("DistanceY", 0, 3, -1, 1, 95.6966))
pocket10 = body.newObject("PartDesign::Pocket", "Pocket009")
pocket10.Profile = sketch11
pocket10.Length = 4

# Sketch on XY plane
sketch12 = body.newObject("Sketcher::SketchObject", "Sketch011")
sketch12.AttachmentSupport = (doc.getObject("XY_Plane"), [""])
sketch12.MapMode = "FlatFace"
sketch12.addGeometry(Part.Circle(V(-40.0481, -95.6966, 0), V(0, 0, 1), 6.5), False)
sketch12.addGeometry(Part.Circle(V(-40.0481, -95.6966, 0), V(0, 0, 1), 2.5), False)
sketch12.addConstraint(Sketcher.Constraint("Coincident", 1, 3, 0, 3))
sketch12.addConstraint(Sketcher.Constraint("Diameter", 0, 13.0))
sketch12.addConstraint(Sketcher.Constraint("Diameter", 1, 5.0))
sketch12.addConstraint(Sketcher.Constraint("DistanceX", 0, 3, -1, 1, 40.048))
sketch12.addConstraint(Sketcher.Constraint("DistanceY", 0, 3, -1, 1, 95.6966))
pocket11 = body.newObject("PartDesign::Pocket", "Pocket010")
pocket11.Profile = sketch12
pocket11.Length = 4
pocket11.Reversed = True

# Sketch on XY plane
sketch13 = body.newObject("Sketcher::SketchObject", "Sketch012")
sketch13.AttachmentSupport = (doc.getObject("XY_Plane"), [""])
sketch13.MapMode = "FlatFace"
sketch13.AttachmentOffset = App.Placement(V(0, 0, 41.5), App.Rotation())
sketch13.addGeometry(Part.LineSegment(V(80, -11.836, 0), V(80, -20, 0)), False)
sketch13.addGeometry(Part.ArcOfCircle(Part.Circle(V(80, -4.836, 0), V(0, 0, 1), 15.164), math.radians(-90), math.radians(90)), False)
sketch13.addGeometry(Part.LineSegment(V(80, 10.328, 0), V(80, 2.164, 0)), False)
sketch13.addGeometry(Part.ArcOfCircle(Part.Circle(V(80, -4.836, 0), V(0, 0, 1), 7), math.radians(-90), math.radians(90)), False)
sketch13.addConstraint(Sketcher.Constraint("Coincident", 0, 2, 1, 1))
sketch13.addConstraint(Sketcher.Constraint("Coincident", 1, 2, 2, 1))
sketch13.addConstraint(Sketcher.Constraint("Coincident", 2, 2, 3, 2))
sketch13.addConstraint(Sketcher.Constraint("Coincident", 3, 1, 0, 1))
sketch13.addConstraint(Sketcher.Constraint("Vertical", 0))
sketch13.addConstraint(Sketcher.Constraint("Vertical", 2))
sketch13.addConstraint(Sketcher.Constraint("Coincident", 3, 3, 1, 3))
sketch13.addConstraint(Sketcher.Constraint("Vertical", 3, 3, 0, 2))
sketch13.addConstraint(Sketcher.Constraint("Vertical", 0, 2, 1, 2))
sketch13.addConstraint(Sketcher.Constraint("Radius", 3, 7.0))
sketch13.addConstraint(Sketcher.Constraint("DistanceX", -1, 1, 1, 3, 80.0))
sketch13.addConstraint(Sketcher.Constraint("DistanceY", 0, 2, -1, 1, 20.0))
sketch13.addConstraint(Sketcher.Constraint("Radius", 1, 15.164))
pad2 = body.newObject("PartDesign::Pad", "Pad001")
pad2.Profile = sketch13
pad2.Length = 41.5
pad2.Reversed = True

# Sketch on XY plane
sketch14 = body.newObject("Sketcher::SketchObject", "Sketch013")
sketch14.AttachmentSupport = (doc.getObject("XY_Plane"), [""])
sketch14.MapMode = "FlatFace"
sketch14.AttachmentOffset = App.Placement(V(0, 0, 41.5), App.Rotation())
sketch14.addGeometry(Part.Circle(V(80, -4.836, 0), V(0, 0, 1), 7), False)
sketch14.addConstraint(Sketcher.Constraint("Diameter", 0, 14.0))
sketch14.addConstraint(Sketcher.Constraint("DistanceX", -1, 1, 0, 3, 80.0))
sketch14.addConstraint(Sketcher.Constraint("DistanceY", 0, 3, -1, 1, 4.836))
pocket12 = body.newObject("PartDesign::Pocket", "Pocket011")
pocket12.Profile = sketch14
pocket12.Type = "ThroughAll"

# Sketch on XY plane
sketch15 = body.newObject("Sketcher::SketchObject", "Sketch014")
sketch15.AttachmentSupport = (doc.getObject("XY_Plane"), [""])
sketch15.MapMode = "FlatFace"
sketch15.AttachmentOffset = App.Placement(V(0, 0, 41.5), App.Rotation())
sketch15.addGeometry(Part.Circle(V(80, -4.836, 0), V(0, 0, 1), 16.164), False)
sketch15.addGeometry(Part.Circle(V(80, -4.836, 0), V(0, 0, 1), 7), False)
sketch15.addConstraint(Sketcher.Constraint("Coincident", 1, 3, 0, 3))
sketch15.addConstraint(Sketcher.Constraint("Diameter", 1, 14.0))
sketch15.addConstraint(Sketcher.Constraint("Diameter", 0, 32.328))
sketch15.addConstraint(Sketcher.Constraint("DistanceX", -1, 1, 0, 3, 80.0))
sketch15.addConstraint(Sketcher.Constraint("DistanceY", 0, 3, -1, 1, 4.836))
pocket13 = body.newObject("PartDesign::Pocket", "Pocket012")
pocket13.Profile = sketch15
pocket13.Length = 20.75

# Sketch on XZ plane
sketch16 = body.newObject("Sketcher::SketchObject", "Sketch015")
sketch16.AttachmentSupport = (doc.getObject("XZ_Plane"), [""])
sketch16.MapMode = "FlatFace"
sketch16.AttachmentOffset = App.Placement(V(0, 0, 154.5481), App.Rotation())
sketch16.addGeometry(Part.Circle(V(60.7055, 20.75, 0), V(0, 0, 1), 2.5), False)
sketch16.addConstraint(Sketcher.Constraint("Diameter", 0, 5.0))
sketch16.addConstraint(Sketcher.Constraint("DistanceY", -1, 1, 0, 3, 20.75))
sketch16.addConstraint(Sketcher.Constraint("DistanceX", -1, 1, 0, 3, 60.7055))
pocket14 = body.newObject("PartDesign::Pocket", "Pocket013")
pocket14.Profile = sketch16
pocket14.Length = 50

doc.recompute()
